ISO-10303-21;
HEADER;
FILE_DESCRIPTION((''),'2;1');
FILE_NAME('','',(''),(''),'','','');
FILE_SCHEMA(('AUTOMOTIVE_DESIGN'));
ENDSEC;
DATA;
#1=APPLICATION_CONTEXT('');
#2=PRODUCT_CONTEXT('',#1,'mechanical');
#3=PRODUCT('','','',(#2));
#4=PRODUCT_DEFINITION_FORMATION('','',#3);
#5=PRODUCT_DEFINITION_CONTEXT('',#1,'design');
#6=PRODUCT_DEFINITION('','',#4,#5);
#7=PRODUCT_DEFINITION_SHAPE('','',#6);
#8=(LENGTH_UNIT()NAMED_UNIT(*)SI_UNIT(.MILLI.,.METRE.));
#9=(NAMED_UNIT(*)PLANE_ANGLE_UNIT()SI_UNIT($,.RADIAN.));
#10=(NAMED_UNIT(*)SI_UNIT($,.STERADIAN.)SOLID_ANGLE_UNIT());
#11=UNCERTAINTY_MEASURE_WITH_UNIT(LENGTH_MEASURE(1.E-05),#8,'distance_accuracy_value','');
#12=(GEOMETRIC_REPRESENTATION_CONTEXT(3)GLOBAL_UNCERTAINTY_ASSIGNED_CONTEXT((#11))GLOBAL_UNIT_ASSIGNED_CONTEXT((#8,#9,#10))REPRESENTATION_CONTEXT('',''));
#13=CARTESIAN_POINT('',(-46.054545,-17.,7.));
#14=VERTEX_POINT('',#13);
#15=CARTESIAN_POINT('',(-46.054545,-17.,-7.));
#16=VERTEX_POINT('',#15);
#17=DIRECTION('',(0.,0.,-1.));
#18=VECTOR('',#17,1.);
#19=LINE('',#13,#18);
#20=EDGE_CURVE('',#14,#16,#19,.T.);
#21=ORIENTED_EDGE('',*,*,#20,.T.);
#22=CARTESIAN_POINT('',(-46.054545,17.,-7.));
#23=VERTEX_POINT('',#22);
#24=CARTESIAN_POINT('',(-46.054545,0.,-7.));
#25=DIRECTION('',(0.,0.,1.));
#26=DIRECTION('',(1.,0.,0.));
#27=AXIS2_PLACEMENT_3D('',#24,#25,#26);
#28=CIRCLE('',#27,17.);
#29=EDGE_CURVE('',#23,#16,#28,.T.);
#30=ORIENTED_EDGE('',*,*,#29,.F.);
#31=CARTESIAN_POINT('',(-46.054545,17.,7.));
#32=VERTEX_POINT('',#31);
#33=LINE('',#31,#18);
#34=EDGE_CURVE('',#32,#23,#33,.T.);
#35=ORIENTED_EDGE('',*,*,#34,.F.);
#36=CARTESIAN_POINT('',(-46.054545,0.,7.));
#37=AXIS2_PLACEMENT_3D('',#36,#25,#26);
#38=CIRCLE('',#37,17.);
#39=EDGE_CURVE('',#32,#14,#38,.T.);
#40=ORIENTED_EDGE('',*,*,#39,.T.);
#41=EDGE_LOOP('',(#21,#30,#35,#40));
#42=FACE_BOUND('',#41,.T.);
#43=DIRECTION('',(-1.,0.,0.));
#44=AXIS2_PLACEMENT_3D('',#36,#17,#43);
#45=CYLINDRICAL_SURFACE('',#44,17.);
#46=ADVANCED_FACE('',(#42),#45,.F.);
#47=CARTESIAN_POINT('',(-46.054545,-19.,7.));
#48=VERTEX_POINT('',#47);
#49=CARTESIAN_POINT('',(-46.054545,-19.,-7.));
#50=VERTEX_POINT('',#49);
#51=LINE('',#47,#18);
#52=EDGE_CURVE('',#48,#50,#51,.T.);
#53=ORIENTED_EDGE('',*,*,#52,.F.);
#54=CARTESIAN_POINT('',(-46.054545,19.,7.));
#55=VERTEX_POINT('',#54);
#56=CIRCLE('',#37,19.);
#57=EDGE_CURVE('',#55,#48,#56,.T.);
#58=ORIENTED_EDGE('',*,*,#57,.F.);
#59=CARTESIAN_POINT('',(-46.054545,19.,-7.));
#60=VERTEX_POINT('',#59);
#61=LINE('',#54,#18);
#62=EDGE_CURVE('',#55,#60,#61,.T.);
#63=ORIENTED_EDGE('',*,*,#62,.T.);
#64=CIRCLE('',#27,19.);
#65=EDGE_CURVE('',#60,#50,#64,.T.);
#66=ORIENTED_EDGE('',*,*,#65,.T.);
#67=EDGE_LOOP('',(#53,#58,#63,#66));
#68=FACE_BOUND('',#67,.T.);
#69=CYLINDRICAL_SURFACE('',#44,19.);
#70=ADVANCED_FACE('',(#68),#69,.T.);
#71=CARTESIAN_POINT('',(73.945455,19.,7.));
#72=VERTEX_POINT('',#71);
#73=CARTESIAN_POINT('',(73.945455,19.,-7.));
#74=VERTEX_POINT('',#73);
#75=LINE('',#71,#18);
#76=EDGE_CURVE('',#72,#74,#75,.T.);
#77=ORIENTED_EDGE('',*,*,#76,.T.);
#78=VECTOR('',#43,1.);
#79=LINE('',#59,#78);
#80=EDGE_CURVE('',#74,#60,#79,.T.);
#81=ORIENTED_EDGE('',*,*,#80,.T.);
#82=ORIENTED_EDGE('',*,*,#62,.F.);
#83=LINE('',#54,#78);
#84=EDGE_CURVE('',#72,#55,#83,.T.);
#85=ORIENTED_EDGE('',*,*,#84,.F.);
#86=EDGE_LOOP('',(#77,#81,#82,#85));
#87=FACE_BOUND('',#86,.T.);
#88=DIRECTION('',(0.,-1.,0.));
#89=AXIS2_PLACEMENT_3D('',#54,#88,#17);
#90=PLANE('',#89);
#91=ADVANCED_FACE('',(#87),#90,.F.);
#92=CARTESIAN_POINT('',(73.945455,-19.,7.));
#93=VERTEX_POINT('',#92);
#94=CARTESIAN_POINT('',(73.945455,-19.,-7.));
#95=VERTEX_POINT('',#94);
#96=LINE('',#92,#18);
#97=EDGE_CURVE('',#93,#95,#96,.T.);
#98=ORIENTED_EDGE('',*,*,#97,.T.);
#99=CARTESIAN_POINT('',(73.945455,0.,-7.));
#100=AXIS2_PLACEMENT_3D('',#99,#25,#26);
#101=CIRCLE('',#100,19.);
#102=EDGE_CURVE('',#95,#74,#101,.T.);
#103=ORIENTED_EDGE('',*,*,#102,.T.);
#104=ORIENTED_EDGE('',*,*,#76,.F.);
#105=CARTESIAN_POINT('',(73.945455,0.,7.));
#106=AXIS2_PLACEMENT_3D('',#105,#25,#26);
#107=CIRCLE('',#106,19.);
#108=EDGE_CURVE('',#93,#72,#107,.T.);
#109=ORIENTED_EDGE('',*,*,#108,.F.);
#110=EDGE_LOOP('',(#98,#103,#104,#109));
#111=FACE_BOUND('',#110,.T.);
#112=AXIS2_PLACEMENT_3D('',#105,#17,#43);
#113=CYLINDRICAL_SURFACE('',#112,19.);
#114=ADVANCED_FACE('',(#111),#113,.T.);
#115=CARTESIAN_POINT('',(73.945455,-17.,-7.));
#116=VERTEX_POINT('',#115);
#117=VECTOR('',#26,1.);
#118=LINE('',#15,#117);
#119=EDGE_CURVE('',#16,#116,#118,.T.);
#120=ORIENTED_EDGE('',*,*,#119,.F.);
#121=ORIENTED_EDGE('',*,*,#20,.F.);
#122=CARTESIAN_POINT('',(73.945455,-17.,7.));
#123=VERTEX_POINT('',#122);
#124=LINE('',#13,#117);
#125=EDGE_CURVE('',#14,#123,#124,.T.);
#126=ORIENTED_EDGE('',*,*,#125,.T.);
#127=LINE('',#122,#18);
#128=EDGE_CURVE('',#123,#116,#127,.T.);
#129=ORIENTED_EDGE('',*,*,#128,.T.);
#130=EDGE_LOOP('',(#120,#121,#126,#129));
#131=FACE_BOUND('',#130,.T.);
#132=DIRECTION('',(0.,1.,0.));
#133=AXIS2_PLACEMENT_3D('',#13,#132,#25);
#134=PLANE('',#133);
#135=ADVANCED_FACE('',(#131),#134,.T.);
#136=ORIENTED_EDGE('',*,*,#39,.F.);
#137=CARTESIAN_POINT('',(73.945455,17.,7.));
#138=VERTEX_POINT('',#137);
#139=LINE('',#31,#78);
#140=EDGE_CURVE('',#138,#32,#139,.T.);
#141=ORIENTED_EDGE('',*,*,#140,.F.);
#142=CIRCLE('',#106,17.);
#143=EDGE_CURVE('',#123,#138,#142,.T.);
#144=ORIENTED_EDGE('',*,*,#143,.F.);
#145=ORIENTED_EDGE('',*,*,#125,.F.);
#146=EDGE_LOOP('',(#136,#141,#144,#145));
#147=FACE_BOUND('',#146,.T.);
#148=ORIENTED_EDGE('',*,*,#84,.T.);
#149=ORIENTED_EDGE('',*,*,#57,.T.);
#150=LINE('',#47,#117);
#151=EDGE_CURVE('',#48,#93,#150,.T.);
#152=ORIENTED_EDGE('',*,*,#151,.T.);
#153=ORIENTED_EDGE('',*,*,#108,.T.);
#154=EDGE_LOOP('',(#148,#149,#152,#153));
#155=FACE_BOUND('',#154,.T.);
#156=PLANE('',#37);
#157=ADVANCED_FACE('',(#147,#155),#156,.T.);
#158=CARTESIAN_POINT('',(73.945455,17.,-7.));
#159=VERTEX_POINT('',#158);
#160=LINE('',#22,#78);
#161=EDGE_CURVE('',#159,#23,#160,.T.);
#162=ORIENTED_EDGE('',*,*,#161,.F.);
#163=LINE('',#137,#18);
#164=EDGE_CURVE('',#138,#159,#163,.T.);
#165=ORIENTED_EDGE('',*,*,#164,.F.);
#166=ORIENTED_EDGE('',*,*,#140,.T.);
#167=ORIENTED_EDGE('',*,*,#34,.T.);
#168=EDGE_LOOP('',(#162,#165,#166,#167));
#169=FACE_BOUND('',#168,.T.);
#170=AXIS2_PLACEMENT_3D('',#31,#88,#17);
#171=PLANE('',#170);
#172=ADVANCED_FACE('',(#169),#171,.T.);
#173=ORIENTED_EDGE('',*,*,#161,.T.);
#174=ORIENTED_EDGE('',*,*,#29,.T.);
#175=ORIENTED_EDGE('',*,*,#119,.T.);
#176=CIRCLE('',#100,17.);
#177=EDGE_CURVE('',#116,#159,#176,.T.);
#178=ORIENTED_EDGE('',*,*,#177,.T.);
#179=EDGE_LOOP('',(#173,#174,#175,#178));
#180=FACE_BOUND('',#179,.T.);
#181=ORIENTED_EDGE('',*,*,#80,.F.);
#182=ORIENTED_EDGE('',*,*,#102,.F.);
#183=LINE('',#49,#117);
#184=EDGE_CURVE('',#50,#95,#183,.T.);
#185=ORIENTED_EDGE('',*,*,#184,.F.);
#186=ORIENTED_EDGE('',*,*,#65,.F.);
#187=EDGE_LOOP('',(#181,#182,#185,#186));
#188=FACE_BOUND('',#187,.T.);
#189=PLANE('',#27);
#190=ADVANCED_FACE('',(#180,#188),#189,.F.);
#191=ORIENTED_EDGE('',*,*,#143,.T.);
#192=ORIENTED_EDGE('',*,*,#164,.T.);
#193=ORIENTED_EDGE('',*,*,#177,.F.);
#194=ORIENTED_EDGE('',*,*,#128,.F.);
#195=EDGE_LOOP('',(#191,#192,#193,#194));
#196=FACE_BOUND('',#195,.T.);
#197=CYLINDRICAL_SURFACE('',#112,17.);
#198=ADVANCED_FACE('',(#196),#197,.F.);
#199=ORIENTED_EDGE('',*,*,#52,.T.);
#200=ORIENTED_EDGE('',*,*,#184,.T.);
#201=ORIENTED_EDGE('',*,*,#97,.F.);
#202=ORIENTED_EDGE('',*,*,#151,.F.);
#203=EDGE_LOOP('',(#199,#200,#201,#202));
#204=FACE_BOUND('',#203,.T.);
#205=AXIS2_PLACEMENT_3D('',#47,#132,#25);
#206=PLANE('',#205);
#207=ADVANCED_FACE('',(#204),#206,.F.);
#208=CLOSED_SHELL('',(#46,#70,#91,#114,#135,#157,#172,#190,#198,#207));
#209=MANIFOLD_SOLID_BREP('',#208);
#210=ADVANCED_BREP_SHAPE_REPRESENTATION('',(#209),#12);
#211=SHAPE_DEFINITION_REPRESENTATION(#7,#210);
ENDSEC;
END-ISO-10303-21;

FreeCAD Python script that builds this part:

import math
import FreeCAD as App
import Part
import Sketcher
from FreeCAD import Vector
Q = App.Units.Quantity

doc = App.newDocument("Part")
body = doc.addObject("PartDesign::Body", "Body")

# Sketch on XY plane
sketch1 = doc.addObject("Sketcher::SketchObject", "Sketch")
body.addObject(sketch1)
sketch1.AttachmentSupport = (doc.XY_Plane, [""])
sketch1.MapMode = "FlatFace"
sketch1.addGeometry([
    Part.LineSegment(Vector(-46, -19, 0), Vector(74, -19, 0)),  # 0
    Part.ArcOfCircle(Part.Circle(Vector(74, 0, 0), Vector(0, 0, 1), 19), math.radians(-90), math.radians(90)),  # 1
    Part.LineSegment(Vector(74, 19, 0), Vector(-46, 19, 0)),  # 2
    Part.ArcOfCircle(Part.Circle(Vector(-46, 0, 0), Vector(0, 0, 1), 19), math.radians(90), math.radians(270)),  # 3
    Part.LineSegment(Vector(74, -17, 0), Vector(-46, -17, 0)),  # 4
    Part.ArcOfCircle(Part.Circle(Vector(-46, 0, 0), Vector(0, 0, 1), 17), math.radians(90), math.radians(270)),  # 5
    Part.LineSegment(Vector(-46, 17, 0), Vector(74, 17, 0)),  # 6
    Part.ArcOfCircle(Part.Circle(Vector(74, 0, 0), Vector(0, 0, 1), 17), math.radians(-90), math.radians(90)),  # 7
], False)
sketch1.addConstraint([
    Sketcher.Constraint("Tangent", 0, 2, 1, 1),
    Sketcher.Constraint("Tangent", 1, 2, 2, 1),
    Sketcher.Constraint("Tangent", 2, 2, 3, 1),
    Sketcher.Constraint("Tangent", 3, 2, 0, 1),
    Sketcher.Constraint("Tangent", 4, 2, 5, 2),
    Sketcher.Constraint("Tangent", 5, 1, 6, 1),
    Sketcher.Constraint("Tangent", 6, 2, 7, 2),
    Sketcher.Constraint("Tangent", 7, 1, 4, 1),
    Sketcher.Constraint("Horizontal", 0),
    Sketcher.Constraint("Horizontal", 2),
    Sketcher.Constraint("Horizontal", 4),
    Sketcher.Constraint("Horizontal", 6),
    Sketcher.Constraint("Coincident", 5, 3, 3, 3),
    Sketcher.Constraint("PointOnObject", 1, 3, -1),
    Sketcher.Constraint("Vertical", 7, 3, 0, 2),
    Sketcher.Constraint("Radius", 1, Q("19 mm")),
    Sketcher.Constraint("Radius", 5, Q("17 mm")),
    Sketcher.Constraint("DistanceX", 0, 1, 0, 2, Q("120 mm")),
    Sketcher.Constraint("DistanceX", -1, 1, 1, 3, Q("73.945455 mm")),
])
pad1 = doc.addObject("PartDesign::Pad", "Pad")
body.addObject(pad1)
pad1.Profile = sketch1
pad1.Length = 14
pad1.Midplane = True

doc.recompute()
